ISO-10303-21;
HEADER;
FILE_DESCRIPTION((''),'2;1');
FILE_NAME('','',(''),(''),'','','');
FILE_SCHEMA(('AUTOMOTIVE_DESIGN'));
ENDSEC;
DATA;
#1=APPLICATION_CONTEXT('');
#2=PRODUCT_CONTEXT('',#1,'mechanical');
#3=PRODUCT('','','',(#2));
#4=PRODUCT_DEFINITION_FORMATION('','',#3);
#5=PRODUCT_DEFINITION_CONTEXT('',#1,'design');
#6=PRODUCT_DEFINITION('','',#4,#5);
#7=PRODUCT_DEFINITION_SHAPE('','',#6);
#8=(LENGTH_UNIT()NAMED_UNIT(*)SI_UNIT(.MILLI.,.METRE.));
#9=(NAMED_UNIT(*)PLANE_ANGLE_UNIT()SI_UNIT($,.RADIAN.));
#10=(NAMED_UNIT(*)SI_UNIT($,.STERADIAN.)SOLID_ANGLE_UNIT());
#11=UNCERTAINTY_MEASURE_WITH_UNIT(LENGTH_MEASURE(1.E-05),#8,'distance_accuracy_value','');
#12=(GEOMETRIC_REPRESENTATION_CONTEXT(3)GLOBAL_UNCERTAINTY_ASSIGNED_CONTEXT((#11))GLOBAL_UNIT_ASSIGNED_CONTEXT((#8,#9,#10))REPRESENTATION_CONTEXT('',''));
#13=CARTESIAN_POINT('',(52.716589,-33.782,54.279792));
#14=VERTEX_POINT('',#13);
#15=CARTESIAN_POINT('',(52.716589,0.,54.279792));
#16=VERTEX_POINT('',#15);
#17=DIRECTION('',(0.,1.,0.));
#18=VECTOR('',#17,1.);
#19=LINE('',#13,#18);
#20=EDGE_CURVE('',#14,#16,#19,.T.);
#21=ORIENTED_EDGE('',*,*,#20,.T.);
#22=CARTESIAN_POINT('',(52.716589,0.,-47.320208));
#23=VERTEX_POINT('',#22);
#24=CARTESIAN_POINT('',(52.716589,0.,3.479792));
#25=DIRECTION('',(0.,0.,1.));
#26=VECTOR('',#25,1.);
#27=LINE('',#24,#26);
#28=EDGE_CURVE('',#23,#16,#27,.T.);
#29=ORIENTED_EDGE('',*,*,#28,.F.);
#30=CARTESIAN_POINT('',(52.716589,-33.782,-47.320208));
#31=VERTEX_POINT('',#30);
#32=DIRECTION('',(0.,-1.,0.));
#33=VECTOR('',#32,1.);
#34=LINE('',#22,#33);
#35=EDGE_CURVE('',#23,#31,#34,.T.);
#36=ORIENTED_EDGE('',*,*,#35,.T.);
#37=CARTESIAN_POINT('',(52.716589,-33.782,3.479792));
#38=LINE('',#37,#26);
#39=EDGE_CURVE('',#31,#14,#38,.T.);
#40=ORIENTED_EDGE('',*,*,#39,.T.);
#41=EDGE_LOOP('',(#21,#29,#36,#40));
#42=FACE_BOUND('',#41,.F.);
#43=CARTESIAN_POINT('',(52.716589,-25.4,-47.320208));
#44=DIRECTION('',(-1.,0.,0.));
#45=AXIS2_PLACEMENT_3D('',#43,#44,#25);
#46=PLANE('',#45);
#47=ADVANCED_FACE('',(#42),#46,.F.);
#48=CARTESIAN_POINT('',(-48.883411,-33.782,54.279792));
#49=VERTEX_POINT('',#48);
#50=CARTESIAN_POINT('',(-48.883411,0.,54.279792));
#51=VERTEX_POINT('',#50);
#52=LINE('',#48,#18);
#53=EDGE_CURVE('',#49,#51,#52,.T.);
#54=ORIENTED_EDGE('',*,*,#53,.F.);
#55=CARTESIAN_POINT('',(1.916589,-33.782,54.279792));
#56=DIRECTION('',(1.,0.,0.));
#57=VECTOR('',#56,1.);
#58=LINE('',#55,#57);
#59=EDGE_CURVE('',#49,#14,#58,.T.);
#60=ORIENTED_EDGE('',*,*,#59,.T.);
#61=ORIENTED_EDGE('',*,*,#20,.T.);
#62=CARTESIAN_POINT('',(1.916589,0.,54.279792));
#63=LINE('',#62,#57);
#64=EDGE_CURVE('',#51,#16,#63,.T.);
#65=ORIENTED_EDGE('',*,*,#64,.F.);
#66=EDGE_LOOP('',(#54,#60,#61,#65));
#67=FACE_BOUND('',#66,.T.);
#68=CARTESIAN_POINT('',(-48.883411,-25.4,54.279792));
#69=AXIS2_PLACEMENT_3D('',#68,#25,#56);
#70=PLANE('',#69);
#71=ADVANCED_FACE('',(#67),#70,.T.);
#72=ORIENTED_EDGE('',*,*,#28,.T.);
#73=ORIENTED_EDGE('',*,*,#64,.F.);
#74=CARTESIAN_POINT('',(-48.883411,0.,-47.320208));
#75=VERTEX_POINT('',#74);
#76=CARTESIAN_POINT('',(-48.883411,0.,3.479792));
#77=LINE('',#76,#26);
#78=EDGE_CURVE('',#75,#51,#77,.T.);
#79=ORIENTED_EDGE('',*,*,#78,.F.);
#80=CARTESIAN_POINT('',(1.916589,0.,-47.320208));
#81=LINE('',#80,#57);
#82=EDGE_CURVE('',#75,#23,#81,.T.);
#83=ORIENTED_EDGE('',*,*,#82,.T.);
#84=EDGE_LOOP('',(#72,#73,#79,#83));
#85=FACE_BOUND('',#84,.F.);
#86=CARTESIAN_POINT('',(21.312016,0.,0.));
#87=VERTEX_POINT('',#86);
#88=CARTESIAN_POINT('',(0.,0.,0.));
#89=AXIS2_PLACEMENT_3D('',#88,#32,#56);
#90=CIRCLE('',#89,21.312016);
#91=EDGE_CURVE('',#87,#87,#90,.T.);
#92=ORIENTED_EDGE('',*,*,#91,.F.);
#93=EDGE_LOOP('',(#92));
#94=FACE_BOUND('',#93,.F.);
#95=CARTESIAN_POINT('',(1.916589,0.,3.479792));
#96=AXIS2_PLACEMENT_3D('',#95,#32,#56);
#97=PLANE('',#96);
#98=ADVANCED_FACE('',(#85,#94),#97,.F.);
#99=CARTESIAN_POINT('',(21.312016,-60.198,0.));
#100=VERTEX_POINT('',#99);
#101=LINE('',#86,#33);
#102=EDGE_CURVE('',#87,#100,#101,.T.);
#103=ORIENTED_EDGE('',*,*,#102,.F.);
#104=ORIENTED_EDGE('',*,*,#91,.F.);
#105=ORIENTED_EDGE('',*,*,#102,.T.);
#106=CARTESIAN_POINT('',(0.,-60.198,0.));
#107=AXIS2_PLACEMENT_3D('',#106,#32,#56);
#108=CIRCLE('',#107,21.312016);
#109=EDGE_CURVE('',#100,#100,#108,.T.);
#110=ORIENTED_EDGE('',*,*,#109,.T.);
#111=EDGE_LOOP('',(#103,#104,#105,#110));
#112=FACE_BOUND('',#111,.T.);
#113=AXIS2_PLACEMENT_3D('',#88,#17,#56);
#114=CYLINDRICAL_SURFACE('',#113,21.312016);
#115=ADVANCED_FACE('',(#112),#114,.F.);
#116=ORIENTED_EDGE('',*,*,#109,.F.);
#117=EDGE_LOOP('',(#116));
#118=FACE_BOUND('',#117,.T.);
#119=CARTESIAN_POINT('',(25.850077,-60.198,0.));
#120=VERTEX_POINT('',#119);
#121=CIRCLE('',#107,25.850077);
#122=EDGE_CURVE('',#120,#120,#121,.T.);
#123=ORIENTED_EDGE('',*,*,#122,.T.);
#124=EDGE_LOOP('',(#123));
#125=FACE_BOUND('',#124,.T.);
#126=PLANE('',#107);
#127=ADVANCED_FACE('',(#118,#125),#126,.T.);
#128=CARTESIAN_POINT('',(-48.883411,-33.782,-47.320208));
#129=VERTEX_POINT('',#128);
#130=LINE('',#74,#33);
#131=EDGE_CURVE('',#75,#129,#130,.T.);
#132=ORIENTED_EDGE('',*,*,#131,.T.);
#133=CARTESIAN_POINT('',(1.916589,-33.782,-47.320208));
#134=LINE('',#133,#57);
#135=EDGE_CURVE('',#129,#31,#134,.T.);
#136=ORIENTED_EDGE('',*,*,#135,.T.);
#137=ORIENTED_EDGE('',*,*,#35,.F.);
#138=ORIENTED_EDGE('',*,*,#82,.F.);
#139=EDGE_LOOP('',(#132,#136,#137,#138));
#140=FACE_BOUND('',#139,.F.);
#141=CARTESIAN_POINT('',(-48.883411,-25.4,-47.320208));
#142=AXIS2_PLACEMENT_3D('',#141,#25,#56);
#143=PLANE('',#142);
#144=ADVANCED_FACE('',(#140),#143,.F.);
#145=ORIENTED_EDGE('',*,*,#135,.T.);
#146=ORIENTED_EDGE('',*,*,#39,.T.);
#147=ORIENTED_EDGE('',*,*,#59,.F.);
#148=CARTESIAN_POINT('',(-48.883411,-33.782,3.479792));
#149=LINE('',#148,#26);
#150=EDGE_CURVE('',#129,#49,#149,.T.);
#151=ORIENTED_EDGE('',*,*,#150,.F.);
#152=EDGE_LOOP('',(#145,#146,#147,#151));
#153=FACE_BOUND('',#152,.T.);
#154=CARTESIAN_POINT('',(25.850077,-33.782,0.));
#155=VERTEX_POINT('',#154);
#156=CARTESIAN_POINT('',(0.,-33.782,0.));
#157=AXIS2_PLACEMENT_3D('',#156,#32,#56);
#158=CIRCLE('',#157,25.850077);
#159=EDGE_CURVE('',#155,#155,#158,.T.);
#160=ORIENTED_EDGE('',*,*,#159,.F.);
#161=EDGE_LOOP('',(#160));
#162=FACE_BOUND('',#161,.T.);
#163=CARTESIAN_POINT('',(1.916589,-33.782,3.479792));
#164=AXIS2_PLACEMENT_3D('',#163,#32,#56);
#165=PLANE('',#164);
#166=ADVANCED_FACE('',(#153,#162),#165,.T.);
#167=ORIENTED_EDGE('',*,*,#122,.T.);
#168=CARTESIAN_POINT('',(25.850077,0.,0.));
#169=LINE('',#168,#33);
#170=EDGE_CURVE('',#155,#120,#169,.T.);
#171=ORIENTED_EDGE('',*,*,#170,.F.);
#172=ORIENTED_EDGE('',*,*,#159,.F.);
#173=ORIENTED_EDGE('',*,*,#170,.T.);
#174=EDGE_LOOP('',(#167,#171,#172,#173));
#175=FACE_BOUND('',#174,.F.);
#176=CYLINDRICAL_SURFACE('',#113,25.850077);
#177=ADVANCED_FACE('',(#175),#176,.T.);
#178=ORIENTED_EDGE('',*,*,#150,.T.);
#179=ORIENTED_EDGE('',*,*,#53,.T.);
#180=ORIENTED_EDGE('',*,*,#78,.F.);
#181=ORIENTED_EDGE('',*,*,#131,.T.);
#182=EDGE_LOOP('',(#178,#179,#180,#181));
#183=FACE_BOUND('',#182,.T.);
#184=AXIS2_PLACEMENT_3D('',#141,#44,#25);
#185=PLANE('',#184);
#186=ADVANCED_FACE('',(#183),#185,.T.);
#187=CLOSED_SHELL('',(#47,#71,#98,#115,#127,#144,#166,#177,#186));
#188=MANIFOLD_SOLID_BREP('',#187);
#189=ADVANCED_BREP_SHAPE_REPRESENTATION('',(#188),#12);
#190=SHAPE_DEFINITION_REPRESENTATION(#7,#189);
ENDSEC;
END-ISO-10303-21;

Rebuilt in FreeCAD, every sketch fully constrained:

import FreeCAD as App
import Part
import Sketcher
Q = App.Units.Quantity


def add_polygon(sketch, points):
    """Adds a closed chain of lines whose ends are joined by coincident constraints."""
    first, n = sketch.GeometryCount, len(points)
    for a, b in zip(points, points[1:] + points[:1]):
        sketch.addGeometry(Part.LineSegment(App.Vector(*a, 0), App.Vector(*b, 0)), False)
    for i in range(n):
        sketch.addConstraint(Sketcher.Constraint("Coincident", first + i, 2, first + (i + 1) % n, 1))

doc = App.newDocument("Part")
body = doc.addObject("PartDesign::Body", "Body")

# Sketch on XZ plane
sketch1 = body.newObject("Sketcher::SketchObject", "Sketch")
sketch1.AttachmentSupport = (doc.getObject("XZ_Plane"), [""])
sketch1.MapMode = "FlatFace"
add_polygon(sketch1, [(-48.883411, 54.279792), (-48.883411, -47.320208), (52.716589, -47.320208), (52.716589, 54.279792)])  # lines 0-3
sketch1.addGeometry(Part.Circle(App.Vector(0, 0, 0), App.Vector(0, 0, 1), 25.850077), False)  # 4
sketch1.addConstraint([
    Sketcher.Constraint("Vertical", 0),
    Sketcher.Constraint("Horizontal", 1),
    Sketcher.Constraint("Vertical", 2),
    Sketcher.Constraint("Horizontal", 3),
    Sketcher.Constraint("Coincident", 4, 3, -1, 1),
    Sketcher.Constraint("Equal", 3, 0),
    Sketcher.Constraint("DistanceX", 1, 1, 1, 2, Q("4 in")),
    Sketcher.Constraint("Diameter", 4, 51.700154),
    Sketcher.Constraint("DistanceX", 0, 2, -1, 1, 48.883411),
    Sketcher.Constraint("DistanceY", 0, 2, -1, 1, 47.320208),
])
pad1 = body.newObject("PartDesign::Pad", "Pad")
pad1.Profile = sketch1
pad1.Length = Q("1 in")

# Sketch on XZ plane
sketch2 = body.newObject("Sketcher::SketchObject", "Sketch001")
sketch2.AttachmentSupport = (doc.getObject("XZ_Plane"), [""])
sketch2.MapMode = "FlatFace"
sketch2.addGeometry([
    Part.Circle(App.Vector(0, 0, 0), App.Vector(0, 0, 1), 25.850077),
    Part.Circle(App.Vector(0, 0, 0), App.Vector(0, 0, 1), 21.312016),
], False)
sketch2.addConstraint([
    Sketcher.Constraint("Coincident", 0, 3, -1, 1),
    Sketcher.Constraint("Coincident", 1, 3, -1, 1),
    Sketcher.Constraint("Diameter", 0, 51.700154),
    Sketcher.Constraint("Diameter", 1, 42.624032),
])
pad2 = body.newObject("PartDesign::Pad", "Pad001")
pad2.Profile = sketch2
pad2.Length = Q("2.37 in")

# Sketch on XZ plane
sketch3 = body.newObject("Sketcher::SketchObject", "Sketch002")
sketch3.AttachmentSupport = (doc.getObject("XZ_Plane"), [""])
sketch3.MapMode = "FlatFace"
sketch3.AttachmentOffset = App.Placement(App.Vector(0, 0, 1 * 25.4), App.Rotation())
add_polygon(sketch3, [(-48.883411, 54.279792), (-48.883411, -47.320208), (52.716589, -47.320208), (52.716589, 54.279792)])  # lines 0-3
sketch3.addGeometry(Part.Circle(App.Vector(0, 0, 0), App.Vector(0, 0, 1), 25.850077), False)  # 4
sketch3.addConstraint([
    Sketcher.Constraint("Vertical", 0),
    Sketcher.Constraint("Horizontal", 1),
    Sketcher.Constraint("Vertical", 2),
    Sketcher.Constraint("Horizontal", 3),
    Sketcher.Constraint("Coincident", 4, 3, -1, 1),
    Sketcher.Constraint("Equal", 3, 0),
    Sketcher.Constraint("DistanceX", 1, 1, 1, 2, Q("4 in")),
    Sketcher.Constraint("Diameter", 4, 51.700154),
    Sketcher.Constraint("DistanceX", 0, 2, -1, 1, 48.883411),
    Sketcher.Constraint("DistanceY", 0, 2, -1, 1, 47.320208),
])
pad3 = body.newObject("PartDesign::Pad", "Pad002")
pad3.Profile = sketch3
pad3.Length = Q("0.33 in")

doc.recompute()
